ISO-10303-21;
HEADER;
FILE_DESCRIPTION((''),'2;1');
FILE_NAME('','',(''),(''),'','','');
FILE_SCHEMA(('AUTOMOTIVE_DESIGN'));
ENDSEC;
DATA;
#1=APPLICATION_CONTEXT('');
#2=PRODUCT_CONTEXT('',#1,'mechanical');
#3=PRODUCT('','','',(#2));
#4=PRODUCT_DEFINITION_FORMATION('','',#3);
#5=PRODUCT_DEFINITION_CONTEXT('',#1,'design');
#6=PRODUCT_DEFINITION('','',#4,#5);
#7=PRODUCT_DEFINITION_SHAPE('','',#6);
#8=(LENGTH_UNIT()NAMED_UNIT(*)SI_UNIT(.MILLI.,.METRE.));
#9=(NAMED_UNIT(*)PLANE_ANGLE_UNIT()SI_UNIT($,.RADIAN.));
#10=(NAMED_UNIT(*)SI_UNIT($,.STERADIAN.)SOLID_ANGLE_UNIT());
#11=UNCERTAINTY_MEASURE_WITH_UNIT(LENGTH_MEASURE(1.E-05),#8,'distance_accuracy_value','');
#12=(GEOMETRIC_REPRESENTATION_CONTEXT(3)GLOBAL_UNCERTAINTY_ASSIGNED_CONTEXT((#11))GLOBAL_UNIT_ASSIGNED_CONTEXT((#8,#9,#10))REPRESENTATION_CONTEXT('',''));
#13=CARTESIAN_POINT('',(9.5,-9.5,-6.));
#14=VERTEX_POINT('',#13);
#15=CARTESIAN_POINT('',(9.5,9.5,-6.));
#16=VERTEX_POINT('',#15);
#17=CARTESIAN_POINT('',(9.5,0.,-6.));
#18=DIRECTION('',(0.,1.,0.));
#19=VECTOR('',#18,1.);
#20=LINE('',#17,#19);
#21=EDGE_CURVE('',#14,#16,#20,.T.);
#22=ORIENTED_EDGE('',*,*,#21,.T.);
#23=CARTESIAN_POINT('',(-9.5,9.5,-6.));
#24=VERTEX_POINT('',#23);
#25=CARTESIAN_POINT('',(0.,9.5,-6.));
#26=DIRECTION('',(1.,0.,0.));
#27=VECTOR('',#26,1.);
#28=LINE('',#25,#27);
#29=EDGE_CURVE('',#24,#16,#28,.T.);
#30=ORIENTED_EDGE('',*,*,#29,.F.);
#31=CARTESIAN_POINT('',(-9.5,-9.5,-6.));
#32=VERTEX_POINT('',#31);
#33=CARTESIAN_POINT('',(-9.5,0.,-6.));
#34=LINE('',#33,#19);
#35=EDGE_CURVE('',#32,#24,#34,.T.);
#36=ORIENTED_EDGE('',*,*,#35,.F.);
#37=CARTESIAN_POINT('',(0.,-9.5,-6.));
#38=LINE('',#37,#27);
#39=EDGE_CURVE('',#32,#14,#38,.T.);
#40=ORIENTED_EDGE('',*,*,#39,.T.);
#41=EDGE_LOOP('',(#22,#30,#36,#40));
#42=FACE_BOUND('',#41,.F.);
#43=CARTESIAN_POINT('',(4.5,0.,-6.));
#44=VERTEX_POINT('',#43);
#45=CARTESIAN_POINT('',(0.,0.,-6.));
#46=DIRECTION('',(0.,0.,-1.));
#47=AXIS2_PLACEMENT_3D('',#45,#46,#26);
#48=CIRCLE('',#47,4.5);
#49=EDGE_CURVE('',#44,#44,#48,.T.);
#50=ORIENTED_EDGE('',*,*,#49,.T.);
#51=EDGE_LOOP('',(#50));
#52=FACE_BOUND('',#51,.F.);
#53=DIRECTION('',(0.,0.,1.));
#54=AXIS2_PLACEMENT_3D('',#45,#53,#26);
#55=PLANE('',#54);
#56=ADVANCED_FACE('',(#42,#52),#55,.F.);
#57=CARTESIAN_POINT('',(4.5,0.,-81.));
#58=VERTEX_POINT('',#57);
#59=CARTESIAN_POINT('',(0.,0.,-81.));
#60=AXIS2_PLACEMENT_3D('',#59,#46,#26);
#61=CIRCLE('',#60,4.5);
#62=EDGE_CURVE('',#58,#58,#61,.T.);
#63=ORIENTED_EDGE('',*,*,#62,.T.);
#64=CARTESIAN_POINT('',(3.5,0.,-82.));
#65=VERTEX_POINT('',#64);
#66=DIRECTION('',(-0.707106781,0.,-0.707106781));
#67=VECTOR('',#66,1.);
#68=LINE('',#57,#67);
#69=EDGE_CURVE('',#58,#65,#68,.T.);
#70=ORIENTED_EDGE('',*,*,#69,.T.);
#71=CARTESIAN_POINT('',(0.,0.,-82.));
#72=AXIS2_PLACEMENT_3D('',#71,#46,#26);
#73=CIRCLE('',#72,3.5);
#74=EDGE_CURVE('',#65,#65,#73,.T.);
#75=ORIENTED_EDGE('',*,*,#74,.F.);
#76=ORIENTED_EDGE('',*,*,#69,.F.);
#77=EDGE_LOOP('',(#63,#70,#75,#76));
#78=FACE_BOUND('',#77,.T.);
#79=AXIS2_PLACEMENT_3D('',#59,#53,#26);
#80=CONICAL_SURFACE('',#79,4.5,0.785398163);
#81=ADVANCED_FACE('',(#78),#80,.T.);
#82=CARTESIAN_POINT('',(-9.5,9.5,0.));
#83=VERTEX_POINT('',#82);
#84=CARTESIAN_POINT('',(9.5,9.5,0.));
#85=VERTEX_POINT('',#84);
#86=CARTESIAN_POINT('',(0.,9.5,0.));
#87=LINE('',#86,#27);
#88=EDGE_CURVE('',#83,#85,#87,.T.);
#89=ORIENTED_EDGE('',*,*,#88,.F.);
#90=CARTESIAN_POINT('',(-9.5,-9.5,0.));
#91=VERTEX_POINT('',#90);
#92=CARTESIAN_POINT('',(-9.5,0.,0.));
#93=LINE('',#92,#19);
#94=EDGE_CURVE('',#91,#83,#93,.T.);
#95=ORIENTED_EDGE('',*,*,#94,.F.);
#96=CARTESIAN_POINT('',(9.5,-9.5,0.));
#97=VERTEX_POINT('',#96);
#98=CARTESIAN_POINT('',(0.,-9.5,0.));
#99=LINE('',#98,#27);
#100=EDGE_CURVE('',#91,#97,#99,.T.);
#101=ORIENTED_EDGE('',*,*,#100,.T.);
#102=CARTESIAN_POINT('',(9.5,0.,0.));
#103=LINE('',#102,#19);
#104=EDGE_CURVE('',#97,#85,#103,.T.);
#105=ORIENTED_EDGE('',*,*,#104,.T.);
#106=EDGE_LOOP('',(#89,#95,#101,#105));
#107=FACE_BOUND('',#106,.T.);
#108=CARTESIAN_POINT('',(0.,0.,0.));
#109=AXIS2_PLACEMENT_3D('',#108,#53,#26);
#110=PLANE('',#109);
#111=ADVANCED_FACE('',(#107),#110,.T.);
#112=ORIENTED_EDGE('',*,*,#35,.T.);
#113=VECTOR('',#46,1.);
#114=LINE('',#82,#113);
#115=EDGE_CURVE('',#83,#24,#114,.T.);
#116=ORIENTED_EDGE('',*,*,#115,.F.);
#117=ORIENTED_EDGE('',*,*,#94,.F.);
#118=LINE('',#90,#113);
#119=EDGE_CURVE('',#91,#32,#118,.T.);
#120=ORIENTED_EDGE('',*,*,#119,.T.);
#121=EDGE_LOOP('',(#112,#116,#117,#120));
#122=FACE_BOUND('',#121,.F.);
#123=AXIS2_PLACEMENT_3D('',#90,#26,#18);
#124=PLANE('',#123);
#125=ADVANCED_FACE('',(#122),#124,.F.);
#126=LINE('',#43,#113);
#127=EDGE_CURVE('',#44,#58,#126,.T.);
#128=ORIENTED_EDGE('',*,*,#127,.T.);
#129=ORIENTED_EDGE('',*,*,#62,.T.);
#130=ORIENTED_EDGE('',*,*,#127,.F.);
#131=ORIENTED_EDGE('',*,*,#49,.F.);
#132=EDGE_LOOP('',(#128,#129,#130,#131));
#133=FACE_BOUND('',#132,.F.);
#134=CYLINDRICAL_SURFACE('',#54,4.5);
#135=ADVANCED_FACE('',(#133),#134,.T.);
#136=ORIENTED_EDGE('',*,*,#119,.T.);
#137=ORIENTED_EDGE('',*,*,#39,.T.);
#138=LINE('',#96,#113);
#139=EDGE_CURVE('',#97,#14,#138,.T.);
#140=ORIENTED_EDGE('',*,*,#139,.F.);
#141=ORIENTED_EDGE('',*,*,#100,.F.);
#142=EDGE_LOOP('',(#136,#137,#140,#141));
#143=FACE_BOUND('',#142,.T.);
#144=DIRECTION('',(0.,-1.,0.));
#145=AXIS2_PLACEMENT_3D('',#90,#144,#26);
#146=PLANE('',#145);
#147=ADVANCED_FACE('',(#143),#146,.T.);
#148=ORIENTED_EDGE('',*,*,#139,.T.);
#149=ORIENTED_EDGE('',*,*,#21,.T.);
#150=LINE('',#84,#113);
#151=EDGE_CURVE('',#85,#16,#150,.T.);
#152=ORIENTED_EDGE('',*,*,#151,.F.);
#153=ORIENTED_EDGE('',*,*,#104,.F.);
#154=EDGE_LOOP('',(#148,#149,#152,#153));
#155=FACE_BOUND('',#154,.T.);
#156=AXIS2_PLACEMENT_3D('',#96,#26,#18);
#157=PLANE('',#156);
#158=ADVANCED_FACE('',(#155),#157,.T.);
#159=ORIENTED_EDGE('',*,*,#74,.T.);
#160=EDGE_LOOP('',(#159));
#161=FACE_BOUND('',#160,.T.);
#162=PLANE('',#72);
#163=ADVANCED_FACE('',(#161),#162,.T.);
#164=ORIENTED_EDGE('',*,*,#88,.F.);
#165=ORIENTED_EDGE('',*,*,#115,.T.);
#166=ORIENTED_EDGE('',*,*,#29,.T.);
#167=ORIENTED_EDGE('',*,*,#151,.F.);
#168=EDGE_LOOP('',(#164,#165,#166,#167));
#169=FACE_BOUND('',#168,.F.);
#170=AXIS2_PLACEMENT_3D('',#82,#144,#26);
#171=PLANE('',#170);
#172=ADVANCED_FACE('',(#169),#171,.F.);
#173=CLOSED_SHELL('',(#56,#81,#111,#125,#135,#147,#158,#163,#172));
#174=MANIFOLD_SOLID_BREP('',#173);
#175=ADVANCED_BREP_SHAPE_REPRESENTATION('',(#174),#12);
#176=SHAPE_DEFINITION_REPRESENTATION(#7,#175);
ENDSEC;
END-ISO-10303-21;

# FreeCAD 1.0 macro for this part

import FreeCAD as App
import Part
import Sketcher


def edges_at(feature, points):
    """Names of the edges that pass closest to the given points."""
    edges = feature.Shape.Edges
    near = lambda p: min(range(len(edges)), key=lambda i: edges[i].distToShape(Part.Vertex(*p))[0])
    return sorted({f"Edge{near(p) + 1}" for p in points})

doc = App.newDocument("Part")
params = doc.addObject("Spreadsheet::Sheet", "Params")
for row, (alias, value) in enumerate([
    ("sketch1_width", "19 mm"),
    ("pad1_length", "6 mm"),
    ("sketch2_diameter", "9 mm"),
    ("pad2_length", "76 mm"),
    ("chamfer_size", "1 mm"),
], start=1):
    params.set(f"A{row}", alias)
    params.set(f"B{row}", "=" + value)
    params.setAlias(f"B{row}", alias)

body = doc.addObject("PartDesign::Body", "Body")

# Sketch on XY plane
sketch1 = body.newObject("Sketcher::SketchObject", "Sketch")
sketch1.AttachmentSupport = (doc.getObject("XY_Plane"), [""])
sketch1.MapMode = "FlatFace"
sketch1.addGeometry([
    Part.LineSegment(App.Vector(-10, 10, 0), App.Vector(-10, -10, 0)),
    Part.LineSegment(App.Vector(-10, -10, 0), App.Vector(10, -10, 0)),
    Part.LineSegment(App.Vector(10, -10, 0), App.Vector(10, 10, 0)),
    Part.LineSegment(App.Vector(10, 10, 0), App.Vector(-10, 10, 0)),
], False)
sketch1.addConstraint([
    Sketcher.Constraint("Coincident", 0, 2, 1, 1),
    Sketcher.Constraint("Coincident", 1, 2, 2, 1),
    Sketcher.Constraint("Coincident", 2, 2, 3, 1),
    Sketcher.Constraint("Coincident", 3, 2, 0, 1),
    Sketcher.Constraint("Vertical", 0),
    Sketcher.Constraint("Horizontal", 1),
    Sketcher.Constraint("Vertical", 2),
    Sketcher.Constraint("Horizontal", 3),
    Sketcher.Constraint("Symmetric", 0, 2, 2, 2, -1, 1),
    Sketcher.Constraint("Equal", 3, 0),
    Sketcher.Constraint("DistanceX", 1, 1, 1, 2, 19.0),
])
sketch1.setExpression("Constraints[10]", "Params.sketch1_width")
pad1 = body.newObject("PartDesign::Pad", "Pad")
pad1.Profile = sketch1
pad1.setExpression("Length", "Params.pad1_length")
pad1.Reversed = True

# Sketch on XY plane
sketch2 = body.newObject("Sketcher::SketchObject", "Sketch001")
sketch2.AttachmentSupport = (doc.getObject("XY_Plane"), [""])
sketch2.MapMode = "FlatFace"
sketch2.AttachmentOffset = App.Placement(App.Vector(0, 0, -6), App.Rotation())
sketch2.addGeometry(Part.Circle(App.Vector(0, 0, 0), App.Vector(0, 0, 1), 4.5), False)
sketch2.addConstraint([
    Sketcher.Constraint("Coincident", 0, 3, -1, 1),
    Sketcher.Constraint("Diameter", 0, 9.0),
])
sketch2.setExpression("Constraints[1]", "Params.sketch2_diameter")
pad2 = body.newObject("PartDesign::Pad", "Pad001")
pad2.Profile = sketch2
pad2.setExpression("Length", "Params.pad2_length")
pad2.Reversed = True
doc.recompute()

chamfer = body.newObject("PartDesign::Chamfer", "Chamfer")
chamfer.Base = (pad2, edges_at(pad2, [(-4.5, 0, -82)]))
chamfer.setExpression("Size", "Params.chamfer_size")

doc.recompute()
